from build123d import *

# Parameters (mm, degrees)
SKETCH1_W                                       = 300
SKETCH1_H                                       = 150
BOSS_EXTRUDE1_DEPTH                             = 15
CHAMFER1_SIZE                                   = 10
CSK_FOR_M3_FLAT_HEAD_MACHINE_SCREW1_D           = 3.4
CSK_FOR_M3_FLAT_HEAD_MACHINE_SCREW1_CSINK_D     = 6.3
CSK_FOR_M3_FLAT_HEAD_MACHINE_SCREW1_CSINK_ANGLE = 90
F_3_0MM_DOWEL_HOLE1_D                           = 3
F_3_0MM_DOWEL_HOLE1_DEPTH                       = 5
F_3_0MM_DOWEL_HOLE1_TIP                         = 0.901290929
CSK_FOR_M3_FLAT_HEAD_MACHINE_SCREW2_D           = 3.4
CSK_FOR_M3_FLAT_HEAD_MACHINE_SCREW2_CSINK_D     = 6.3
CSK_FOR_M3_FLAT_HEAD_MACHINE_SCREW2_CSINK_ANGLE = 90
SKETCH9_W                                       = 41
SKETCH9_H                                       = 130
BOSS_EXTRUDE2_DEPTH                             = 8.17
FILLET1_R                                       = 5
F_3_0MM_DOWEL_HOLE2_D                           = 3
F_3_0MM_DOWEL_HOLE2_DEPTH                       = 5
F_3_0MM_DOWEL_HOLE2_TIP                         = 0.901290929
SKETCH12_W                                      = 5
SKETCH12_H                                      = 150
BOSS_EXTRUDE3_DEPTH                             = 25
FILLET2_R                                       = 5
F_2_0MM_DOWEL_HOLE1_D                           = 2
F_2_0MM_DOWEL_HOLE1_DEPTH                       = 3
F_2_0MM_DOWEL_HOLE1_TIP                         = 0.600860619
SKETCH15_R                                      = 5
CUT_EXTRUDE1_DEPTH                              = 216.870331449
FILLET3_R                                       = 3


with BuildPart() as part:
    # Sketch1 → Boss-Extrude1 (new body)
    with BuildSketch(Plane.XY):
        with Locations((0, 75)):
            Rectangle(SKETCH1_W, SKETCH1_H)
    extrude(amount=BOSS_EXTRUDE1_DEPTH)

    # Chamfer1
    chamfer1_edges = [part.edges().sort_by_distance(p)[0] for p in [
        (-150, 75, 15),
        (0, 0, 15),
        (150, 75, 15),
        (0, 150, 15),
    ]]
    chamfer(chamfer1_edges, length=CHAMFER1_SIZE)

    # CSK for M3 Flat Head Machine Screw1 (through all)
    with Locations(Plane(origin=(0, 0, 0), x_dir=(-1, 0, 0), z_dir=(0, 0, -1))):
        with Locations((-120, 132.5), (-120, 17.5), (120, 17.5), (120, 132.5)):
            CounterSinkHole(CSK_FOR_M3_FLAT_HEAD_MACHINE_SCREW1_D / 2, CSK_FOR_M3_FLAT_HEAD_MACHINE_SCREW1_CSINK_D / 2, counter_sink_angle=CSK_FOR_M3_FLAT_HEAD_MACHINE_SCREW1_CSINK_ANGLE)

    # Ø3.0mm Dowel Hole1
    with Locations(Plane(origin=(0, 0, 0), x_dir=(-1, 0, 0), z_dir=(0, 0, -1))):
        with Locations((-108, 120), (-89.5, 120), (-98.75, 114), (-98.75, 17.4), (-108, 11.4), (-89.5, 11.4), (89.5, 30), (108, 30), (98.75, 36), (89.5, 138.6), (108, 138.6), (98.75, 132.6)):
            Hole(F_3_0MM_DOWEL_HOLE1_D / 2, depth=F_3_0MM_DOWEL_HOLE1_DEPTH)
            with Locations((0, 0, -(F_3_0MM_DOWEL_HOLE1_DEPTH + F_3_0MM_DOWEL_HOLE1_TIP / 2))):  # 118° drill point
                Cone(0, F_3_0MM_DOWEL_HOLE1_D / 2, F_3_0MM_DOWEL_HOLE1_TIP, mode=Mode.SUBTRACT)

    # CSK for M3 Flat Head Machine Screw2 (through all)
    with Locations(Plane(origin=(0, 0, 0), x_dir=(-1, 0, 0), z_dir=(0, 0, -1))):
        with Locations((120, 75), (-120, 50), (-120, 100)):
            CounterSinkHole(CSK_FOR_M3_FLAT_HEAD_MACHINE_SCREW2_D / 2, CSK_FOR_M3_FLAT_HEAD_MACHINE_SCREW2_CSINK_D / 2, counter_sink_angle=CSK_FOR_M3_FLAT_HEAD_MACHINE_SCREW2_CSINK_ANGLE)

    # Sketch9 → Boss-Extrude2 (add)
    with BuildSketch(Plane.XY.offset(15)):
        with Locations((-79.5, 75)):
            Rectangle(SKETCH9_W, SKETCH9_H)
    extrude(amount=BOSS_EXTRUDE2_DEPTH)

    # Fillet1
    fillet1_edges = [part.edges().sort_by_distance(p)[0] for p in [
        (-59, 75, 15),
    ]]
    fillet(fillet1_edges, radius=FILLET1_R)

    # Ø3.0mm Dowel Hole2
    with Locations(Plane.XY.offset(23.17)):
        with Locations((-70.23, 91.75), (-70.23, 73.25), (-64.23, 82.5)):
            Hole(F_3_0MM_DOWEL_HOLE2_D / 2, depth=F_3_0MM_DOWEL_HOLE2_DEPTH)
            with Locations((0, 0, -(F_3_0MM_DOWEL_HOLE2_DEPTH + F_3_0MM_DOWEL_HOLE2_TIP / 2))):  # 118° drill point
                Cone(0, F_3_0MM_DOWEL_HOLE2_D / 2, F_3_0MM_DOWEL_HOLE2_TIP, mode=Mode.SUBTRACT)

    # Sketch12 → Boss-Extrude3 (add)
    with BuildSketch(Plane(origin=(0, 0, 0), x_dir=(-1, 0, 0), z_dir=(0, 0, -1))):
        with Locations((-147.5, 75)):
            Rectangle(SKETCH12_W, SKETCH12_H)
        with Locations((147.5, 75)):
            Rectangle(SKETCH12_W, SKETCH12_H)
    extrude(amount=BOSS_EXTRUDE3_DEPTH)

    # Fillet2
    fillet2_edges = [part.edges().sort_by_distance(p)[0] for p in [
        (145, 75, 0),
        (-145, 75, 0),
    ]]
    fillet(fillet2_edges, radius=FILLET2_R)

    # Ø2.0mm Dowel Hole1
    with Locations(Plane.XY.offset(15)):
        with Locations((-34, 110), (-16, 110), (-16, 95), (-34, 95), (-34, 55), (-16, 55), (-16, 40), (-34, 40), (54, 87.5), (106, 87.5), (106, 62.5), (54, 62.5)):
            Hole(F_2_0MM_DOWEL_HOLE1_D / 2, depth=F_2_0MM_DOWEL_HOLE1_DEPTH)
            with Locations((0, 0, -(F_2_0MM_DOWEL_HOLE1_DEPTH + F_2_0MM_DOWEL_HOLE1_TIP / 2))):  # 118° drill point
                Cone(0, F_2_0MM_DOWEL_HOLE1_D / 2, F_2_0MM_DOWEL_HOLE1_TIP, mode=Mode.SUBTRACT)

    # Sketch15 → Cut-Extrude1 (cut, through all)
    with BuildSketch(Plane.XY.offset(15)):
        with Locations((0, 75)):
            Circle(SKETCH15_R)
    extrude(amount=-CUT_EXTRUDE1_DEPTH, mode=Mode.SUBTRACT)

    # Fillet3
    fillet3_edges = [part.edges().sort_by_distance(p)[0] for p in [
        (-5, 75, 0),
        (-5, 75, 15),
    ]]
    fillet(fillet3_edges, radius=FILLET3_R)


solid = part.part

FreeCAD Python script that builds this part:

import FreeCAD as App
import Part
import Sketcher
from FreeCAD import Vector
Q = App.Units.Quantity


def edges_at(feature, points):
    """Names of the edges that pass closest to the given points."""
    edges = feature.Shape.Edges
    near = lambda p: min(range(len(edges)), key=lambda i: edges[i].distToShape(Part.Vertex(*p))[0])
    return sorted({f"Edge{near(p) + 1}" for p in points})

doc = App.newDocument("Part")
body = doc.addObject("PartDesign::Body", "Body")

sketch1 = body.newObject("Sketcher::SketchObject", "Sketch")
sketch1.AttachmentSupport = (doc.getObject("XY_Plane"), [""])
sketch1.MapMode = "FlatFace"
sketch1.addGeometry([
    Part.LineSegment(Vector(-150, 150, 0), Vector(-150, 0, 0)),
    Part.LineSegment(Vector(-150, 0, 0), Vector(150, 0, 0)),
    Part.LineSegment(Vector(150, 0, 0), Vector(150, 150, 0)),
    Part.LineSegment(Vector(150, 150, 0), Vector(-150, 150, 0)),
], False)
sketch1.addConstraint([
    Sketcher.Constraint("Coincident", 0, 2, 1, 1),
    Sketcher.Constraint("Coincident", 1, 2, 2, 1),
    Sketcher.Constraint("Coincident", 2, 2, 3, 1),
    Sketcher.Constraint("Coincident", 3, 2, 0, 1),
    Sketcher.Constraint("Vertical", 0),
    Sketcher.Constraint("Horizontal", 1),
    Sketcher.Constraint("Vertical", 2),
    Sketcher.Constraint("Horizontal", 3),
    Sketcher.Constraint("Symmetric", 0, 2, 1, 2, -1, 1),
    Sketcher.Constraint("DistanceX", 1, 1, 1, 2, Q("300 mm")),
    Sketcher.Constraint("DistanceY", 0, 2, 0, 1, Q("150 mm")),
])
pad1 = body.newObject("PartDesign::Pad", "Pad")
pad1.Profile = sketch1
pad1.Length = 15
doc.recompute()

chamfer = body.newObject("PartDesign::Chamfer", "Chamfer")
chamfer.Base = (pad1, edges_at(pad1, [
    (-150, 75, 15),
    (0, 0, 15),
    (150, 75, 15),
    (0, 150, 15),
]))
chamfer.Size = 10

sketch2 = body.newObject("Sketcher::SketchObject", "Sketch001")
sketch2.AttachmentSupport = (doc.getObject("XY_Plane"), [""])
sketch2.MapMode = "FlatFace"
sketch2.addGeometry([
    Part.Circle(Vector(120, 132.5, 0), Vector(0, 0, 1), 1.7),
    Part.Circle(Vector(120, 17.5, 0), Vector(0, 0, 1), 1.7),
    Part.Circle(Vector(-120, 17.5, 0), Vector(0, 0, 1), 1.7),
    Part.Circle(Vector(-120, 132.5, 0), Vector(0, 0, 1), 1.7),
], False)
sketch2.addConstraint([
    Sketcher.Constraint("Equal", 0, 1),
    Sketcher.Constraint("Equal", 1, 2),
    Sketcher.Constraint("Equal", 2, 3),
    Sketcher.Constraint("Symmetric", 1, 3, 2, 3, -2),
    Sketcher.Constraint("Symmetric", 0, 3, 3, 3, -2),
    Sketcher.Constraint("Vertical", 0, 3, 1, 3),
    Sketcher.Constraint("Diameter", 0, Q("3.4 mm")),
    Sketcher.Constraint("DistanceX", -1, 1, 0, 3, Q("120 mm")),
    Sketcher.Constraint("DistanceY", 1, 3, 0, 3, Q("115 mm")),
    Sketcher.Constraint("DistanceY", -1, 1, 0, 3, Q("132.5 mm")),
])
doc.recompute()
hole = body.newObject("PartDesign::Hole", "Hole")
hole.Profile = sketch2
hole.ThreadType = "None"
hole.Diameter = 3.4
hole.DepthType = "ThroughAll"
hole.HoleCutType = "Countersink"
hole.HoleCutDiameter = 6.3
hole.HoleCutCountersinkAngle = 90
hole.Reversed = True

sketch3 = body.newObject("Sketcher::SketchObject", "Sketch002")
sketch3.AttachmentSupport = (doc.getObject("XY_Plane"), [""])
sketch3.MapMode = "FlatFace"
sketch3.addGeometry([
    Part.Circle(Vector(108, 120, 0), Vector(0, 0, 1), 1.5),
    Part.Circle(Vector(89.5, 120, 0), Vector(0, 0, 1), 1.5),
    Part.Circle(Vector(98.75, 114, 0), Vector(0, 0, 1), 1.5),
    Part.Circle(Vector(98.75, 17.4, 0), Vector(0, 0, 1), 1.5),
    Part.Circle(Vector(108, 11.4, 0), Vector(0, 0, 1), 1.5),
    Part.Circle(Vector(89.5, 11.4, 0), Vector(0, 0, 1), 1.5),
    Part.Circle(Vector(-89.5, 30, 0), Vector(0, 0, 1), 1.5),
    Part.Circle(Vector(-108, 30, 0), Vector(0, 0, 1), 1.5),
    Part.Circle(Vector(-98.75, 36, 0), Vector(0, 0, 1), 1.5),
    Part.Circle(Vector(-89.5, 138.6, 0), Vector(0, 0, 1), 1.5),
    Part.Circle(Vector(-108, 138.6, 0), Vector(0, 0, 1), 1.5),
    Part.Circle(Vector(-98.75, 132.6, 0), Vector(0, 0, 1), 1.5),
], False)
sketch3.addConstraint([
    Sketcher.Constraint("Equal", 0, 1),
    Sketcher.Constraint("Equal", 1, 2),
    Sketcher.Constraint("Equal", 2, 3),
    Sketcher.Constraint("Equal", 3, 4),
    Sketcher.Constraint("Equal", 4, 5),
    Sketcher.Constraint("Equal", 5, 6),
    Sketcher.Constraint("Equal", 6, 7),
    Sketcher.Constraint("Equal", 7, 8),
    Sketcher.Constraint("Equal", 8, 9),
    Sketcher.Constraint("Equal", 9, 10),
    Sketcher.Constraint("Equal", 10, 11),
    Sketcher.Constraint("Horizontal", 0, 3, 1, 3),
    Sketcher.Constraint("Horizontal", 4, 3, 5, 3),
    Sketcher.Constraint("Horizontal", 6, 3, 7, 3),
    Sketcher.Constraint("Horizontal", 9, 3, 10, 3),
    Sketcher.Constraint("Vertical", 2, 3, 3, 3),
    Sketcher.Constraint("Vertical", 0, 3, 4, 3),
    Sketcher.Constraint("Vertical", 1, 3, 5, 3),
    Sketcher.Constraint("Vertical", 6, 3, 9, 3),
    Sketcher.Constraint("Vertical", 7, 3, 10, 3),
    Sketcher.Constraint("Vertical", 8, 3, 11, 3),
    Sketcher.Constraint("Diameter", 0, Q("3 mm")),
    Sketcher.Constraint("DistanceX", -1, 1, 0, 3, Q("108 mm")),
    Sketcher.Constraint("DistanceY", -1, 1, 0, 3, Q("120 mm")),
    Sketcher.Constraint("DistanceY", -1, 1, 2, 3, Q("114 mm")),
    Sketcher.Constraint("DistanceY", -1, 1, 6, 3, Q("30 mm")),
    Sketcher.Constraint("DistanceX", 7, 3, -1, 1, Q("108 mm")),
    Sketcher.Constraint("DistanceY", -1, 1, 8, 3, Q("36 mm")),
    Sketcher.Constraint("DistanceY", 4, 3, 3, 3, Q("6 mm")),
    Sketcher.Constraint("DistanceX", 6, 3, 5, 3, Q("179 mm")),
    Sketcher.Constraint("DistanceY", 11, 3, 9, 3, Q("6 mm")),
    Sketcher.Constraint("DistanceX", -1, 1, 1, 3, Q("89.5 mm")),
    Sketcher.Constraint("DistanceY", -1, 1, 3, 3, Q("17.4 mm")),
    Sketcher.Constraint("DistanceY", -1, 1, 9, 3, Q("138.6 mm")),
    Sketcher.Constraint("DistanceX", 8, 3, 3, 3, Q("197.5 mm")),
    Sketcher.Constraint("DistanceX", -1, 1, 2, 3, Q("98.75 mm")),
])
doc.recompute()
hole2 = body.newObject("PartDesign::Hole", "Hole001")
hole2.Profile = sketch3
hole2.ThreadType = "None"
hole2.Diameter = 3
hole2.DepthType = "Dimension"
hole2.Depth = 5
hole2.DrillPoint = "Angled"
hole2.DrillPointAngle = 118
hole2.Reversed = True

sketch4 = body.newObject("Sketcher::SketchObject", "Sketch003")
sketch4.AttachmentSupport = (doc.getObject("XY_Plane"), [""])
sketch4.MapMode = "FlatFace"
sketch4.addGeometry([
    Part.Circle(Vector(-120, 75, 0), Vector(0, 0, 1), 1.7),
    Part.Circle(Vector(120, 50, 0), Vector(0, 0, 1), 1.7),
    Part.Circle(Vector(120, 100, 0), Vector(0, 0, 1), 1.7),
], False)
sketch4.addConstraint([
    Sketcher.Constraint("Equal", 0, 1),
    Sketcher.Constraint("Equal", 1, 2),
    Sketcher.Constraint("Vertical", 1, 3, 2, 3),
    Sketcher.Constraint("Diameter", 0, Q("3.4 mm")),
    Sketcher.Constraint("DistanceX", 0, 3, -1, 1, Q("120 mm")),
    Sketcher.Constraint("DistanceY", -1, 1, 0, 3, Q("75 mm")),
    Sketcher.Constraint("DistanceX", -1, 1, 1, 3, Q("120 mm")),
    Sketcher.Constraint("DistanceY", -1, 1, 1, 3, Q("50 mm")),
    Sketcher.Constraint("DistanceY", -1, 1, 2, 3, Q("100 mm")),
])
doc.recompute()
hole3 = body.newObject("PartDesign::Hole", "Hole002")
hole3.Profile = sketch4
hole3.ThreadType = "None"
hole3.Diameter = 3.4
hole3.DepthType = "ThroughAll"
hole3.HoleCutType = "Countersink"
hole3.HoleCutDiameter = 6.3
hole3.HoleCutCountersinkAngle = 90
hole3.Reversed = True

sketch5 = body.newObject("Sketcher::SketchObject", "Sketch004")
sketch5.AttachmentSupport = (doc.getObject("XY_Plane"), [""])
sketch5.MapMode = "FlatFace"
sketch5.AttachmentOffset = App.Placement(Vector(0, 0, 15), App.Rotation())
sketch5.addGeometry([
    Part.LineSegment(Vector(-100, 140, 0), Vector(-100, 10, 0)),
    Part.LineSegment(Vector(-100, 10, 0), Vector(-59, 10, 0)),
    Part.LineSegment(Vector(-59, 10, 0), Vector(-59, 140, 0)),
    Part.LineSegment(Vector(-59, 140, 0), Vector(-100, 140, 0)),
], False)
sketch5.addConstraint([
    Sketcher.Constraint("Coincident", 0, 2, 1, 1),
    Sketcher.Constraint("Coincident", 1, 2, 2, 1),
    Sketcher.Constraint("Coincident", 2, 2, 3, 1),
    Sketcher.Constraint("Coincident", 3, 2, 0, 1),
    Sketcher.Constraint("Vertical", 0),
    Sketcher.Constraint("Horizontal", 1),
    Sketcher.Constraint("Vertical", 2),
    Sketcher.Constraint("Horizontal", 3),
    Sketcher.Constraint("DistanceX", 1, 1, 1, 2, Q("41 mm")),
    Sketcher.Constraint("DistanceY", 0, 2, 0, 1, Q("130 mm")),
    Sketcher.Constraint("DistanceX", 0, 2, -1, 1, Q("100 mm")),
    Sketcher.Constraint("DistanceY", -1, 1, 0, 2, Q("10 mm")),
])
pad2 = body.newObject("PartDesign::Pad", "Pad001")
pad2.Profile = sketch5
pad2.Length = 8.17
doc.recompute()

fillet = body.newObject("PartDesign::Fillet", "Fillet")
fillet.Base = (pad2, edges_at(pad2, [(-59, 75, 15)]))
fillet.Radius = 5

sketch6 = body.newObject("Sketcher::SketchObject", "Sketch005")
sketch6.AttachmentSupport = (doc.getObject("XY_Plane"), [""])
sketch6.MapMode = "FlatFace"
sketch6.AttachmentOffset = App.Placement(Vector(0, 0, 23.17), App.Rotation())
sketch6.addGeometry([
    Part.Circle(Vector(-70.23, 91.75, 0), Vector(0, 0, 1), 1.5),
    Part.Circle(Vector(-70.23, 73.25, 0), Vector(0, 0, 1), 1.5),
    Part.Circle(Vector(-64.23, 82.5, 0), Vector(0, 0, 1), 1.5),
], False)
sketch6.addConstraint([
    Sketcher.Constraint("Equal", 0, 1),
    Sketcher.Constraint("Equal", 1, 2),
    Sketcher.Constraint("Vertical", 0, 3, 1, 3),
    Sketcher.Constraint("Diameter", 0, Q("3 mm")),
    Sketcher.Constraint("DistanceX", 0, 3, 2, 3, Q("6 mm")),
    Sketcher.Constraint("DistanceY", -1, 1, 2, 3, Q("82.5 mm")),
    Sketcher.Constraint("DistanceY", 1, 3, 0, 3, Q("18.5 mm")),
    Sketcher.Constraint("DistanceX", 0, 3, -1, 1, Q("70.23 mm")),
    Sketcher.Constraint("DistanceY", -1, 1, 0, 3, Q("91.75 mm")),
])
doc.recompute()
hole4 = body.newObject("PartDesign::Hole", "Hole003")
hole4.Profile = sketch6
hole4.ThreadType = "None"
hole4.Diameter = 3
hole4.DepthType = "Dimension"
hole4.Depth = 5
hole4.DrillPoint = "Angled"
hole4.DrillPointAngle = 118

sketch7 = body.newObject("Sketcher::SketchObject", "Sketch006")
sketch7.AttachmentSupport = (doc.getObject("XY_Plane"), [""])
sketch7.MapMode = "FlatFace"
sketch7.addGeometry([
    Part.LineSegment(Vector(150, 150, 0), Vector(150, 0, 0)),
    Part.LineSegment(Vector(150, 0, 0), Vector(145, 0, 0)),
    Part.LineSegment(Vector(145, 0, 0), Vector(145, 150, 0)),
    Part.LineSegment(Vector(145, 150, 0), Vector(150, 150, 0)),
    Part.LineSegment(Vector(-145, 150, 0), Vector(-145, 0, 0)),
    Part.LineSegment(Vector(-145, 0, 0), Vector(-150, 0, 0)),
    Part.LineSegment(Vector(-150, 0, 0), Vector(-150, 150, 0)),
    Part.LineSegment(Vector(-150, 150, 0), Vector(-145, 150, 0)),
], False)
sketch7.addConstraint([
    Sketcher.Constraint("Coincident", 0, 2, 1, 1),
    Sketcher.Constraint("Coincident", 1, 2, 2, 1),
    Sketcher.Constraint("Coincident", 2, 2, 3, 1),
    Sketcher.Constraint("Coincident", 3, 2, 0, 1),
    Sketcher.Constraint("Coincident", 4, 2, 5, 1),
    Sketcher.Constraint("Coincident", 5, 2, 6, 1),
    Sketcher.Constraint("Coincident", 6, 2, 7, 1),
    Sketcher.Constraint("Coincident", 7, 2, 4, 1),
    Sketcher.Constraint("Vertical", 0),
    Sketcher.Constraint("Horizontal", 1),
    Sketcher.Constraint("Vertical", 2),
    Sketcher.Constraint("Horizontal", 3),
    Sketcher.Constraint("Vertical", 4),
    Sketcher.Constraint("Horizontal", 5),
    Sketcher.Constraint("Vertical", 6),
    Sketcher.Constraint("Horizontal", 7),
    Sketcher.Constraint("Symmetric", 1, 2, 4, 2, -1, 1),
    Sketcher.Constraint("Symmetric", 0, 2, 5, 2, -2),
    Sketcher.Constraint("Horizontal", 3, 2, 6, 2),
    Sketcher.Constraint("DistanceX", 1, 2, 1, 1, Q("5 mm")),
    Sketcher.Constraint("DistanceY", 0, 2, 0, 1, Q("150 mm")),
    Sketcher.Constraint("DistanceX", -1, 1, 0, 2, Q("150 mm")),
])
pad3 = body.newObject("PartDesign::Pad", "Pad002")
pad3.Profile = sketch7
pad3.Length = 25
pad3.Reversed = True
doc.recompute()

fillet2 = body.newObject("PartDesign::Fillet", "Fillet001")
fillet2.Base = (pad3, edges_at(pad3, [(145, 75, 0), (-145, 75, 0)]))
fillet2.Radius = 5

sketch8 = body.newObject("Sketcher::SketchObject", "Sketch007")
sketch8.AttachmentSupport = (doc.getObject("XY_Plane"), [""])
sketch8.MapMode = "FlatFace"
sketch8.AttachmentOffset = App.Placement(Vector(0, 0, 15), App.Rotation())
sketch8.addGeometry([
    Part.Circle(Vector(-34, 110, 0), Vector(0, 0, 1), 1),
    Part.Circle(Vector(-16, 110, 0), Vector(0, 0, 1), 1),
    Part.Circle(Vector(-16, 95, 0), Vector(0, 0, 1), 1),
    Part.Circle(Vector(-34, 95, 0), Vector(0, 0, 1), 1),
    Part.Circle(Vector(-34, 55, 0), Vector(0, 0, 1), 1),
    Part.Circle(Vector(-16, 55, 0), Vector(0, 0, 1), 1),
    Part.Circle(Vector(-16, 40, 0), Vector(0, 0, 1), 1),
    Part.Circle(Vector(-34, 40, 0), Vector(0, 0, 1), 1),
    Part.Circle(Vector(54, 87.5, 0), Vector(0, 0, 1), 1),
    Part.Circle(Vector(106, 87.5, 0), Vector(0, 0, 1), 1),
    Part.Circle(Vector(106, 62.5, 0), Vector(0, 0, 1), 1),
    Part.Circle(Vector(54, 62.5, 0), Vector(0, 0, 1), 1),
], False)
sketch8.addConstraint([
    Sketcher.Constraint("Equal", 0, 1),
    Sketcher.Constraint("Equal", 1, 2),
    Sketcher.Constraint("Equal", 2, 3),
    Sketcher.Constraint("Equal", 3, 4),
    Sketcher.Constraint("Equal", 4, 5),
    Sketcher.Constraint("Equal", 5, 6),
    Sketcher.Constraint("Equal", 6, 7),
    Sketcher.Constraint("Equal", 7, 8),
    Sketcher.Constraint("Equal", 8, 9),
    Sketcher.Constraint("Equal", 9, 10),
    Sketcher.Constraint("Equal", 10, 11),
    Sketcher.Constraint("Horizontal", 0, 3, 1, 3),
    Sketcher.Constraint("Horizontal", 2, 3, 3, 3),
    Sketcher.Constraint("Horizontal", 4, 3, 5, 3),
    Sketcher.Constraint("Horizontal", 6, 3, 7, 3),
    Sketcher.Constraint("Horizontal", 8, 3, 9, 3),
    Sketcher.Constraint("Horizontal", 10, 3, 11, 3),
    Sketcher.Constraint("Vertical", 1, 3, 2, 3),
    Sketcher.Constraint("Vertical", 0, 3, 3, 3),
    Sketcher.Constraint("Vertical", 3, 3, 4, 3),
    Sketcher.Constraint("Vertical", 2, 3, 5, 3),
    Sketcher.Constraint("Vertical", 5, 3, 6, 3),
    Sketcher.Constraint("Vertical", 4, 3, 7, 3),
    Sketcher.Constraint("Vertical", 9, 3, 10, 3),
    Sketcher.Constraint("Vertical", 8, 3, 11, 3),
    Sketcher.Constraint("Diameter", 0, Q("2 mm")),
    Sketcher.Constraint("DistanceX", 0, 3, -1, 1, Q("34 mm")),
    Sketcher.Constraint("DistanceY", -1, 1, 0, 3, Q("110 mm")),
    Sketcher.Constraint("DistanceX", 1, 3, -1, 1, Q("16 mm")),
    Sketcher.Constraint("DistanceY", -1, 1, 2, 3, Q("95 mm")),
    Sketcher.Constraint("DistanceY", -1, 1, 4, 3, Q("55 mm")),
    Sketcher.Constraint("DistanceY", -1, 1, 6, 3, Q("40 mm")),
    Sketcher.Constraint("DistanceX", -1, 1, 8, 3, Q("54 mm")),
    Sketcher.Constraint("DistanceX", -1, 1, 9, 3, Q("106 mm")),
    Sketcher.Constraint("DistanceY", 10, 3, 9, 3, Q("25 mm")),
    Sketcher.Constraint("DistanceY", -1, 1, 8, 3, Q("87.5 mm")),
])
doc.recompute()
hole5 = body.newObject("PartDesign::Hole", "Hole004")
hole5.Profile = sketch8
hole5.ThreadType = "None"
hole5.Diameter = 2
hole5.DepthType = "Dimension"
hole5.Depth = 3
hole5.DrillPoint = "Angled"
hole5.DrillPointAngle = 118

sketch9 = body.newObject("Sketcher::SketchObject", "Sketch008")
sketch9.AttachmentSupport = (doc.getObject("XY_Plane"), [""])
sketch9.MapMode = "FlatFace"
sketch9.AttachmentOffset = App.Placement(Vector(0, 0, 15), App.Rotation())
sketch9.addGeometry(Part.Circle(Vector(0, 75, 0), Vector(0, 0, 1), 5), False)
sketch9.addConstraint([
    Sketcher.Constraint("PointOnObject", 0, 3, -2),
    Sketcher.Constraint("Diameter", 0, Q("10 mm")),
    Sketcher.Constraint("DistanceY", -1, 1, 0, 3, Q("75 mm")),
])
pocket1 = body.newObject("PartDesign::Pocket", "Pocket")
pocket1.Profile = sketch9
pocket1.Type = "ThroughAll"
doc.recompute()

fillet3 = body.newObject("PartDesign::Fillet", "Fillet002")
fillet3.Base = (pocket1, edges_at(pocket1, [(-5, 75, 0), (-5, 75, 15)]))
fillet3.Radius = 3

doc.recompute()
